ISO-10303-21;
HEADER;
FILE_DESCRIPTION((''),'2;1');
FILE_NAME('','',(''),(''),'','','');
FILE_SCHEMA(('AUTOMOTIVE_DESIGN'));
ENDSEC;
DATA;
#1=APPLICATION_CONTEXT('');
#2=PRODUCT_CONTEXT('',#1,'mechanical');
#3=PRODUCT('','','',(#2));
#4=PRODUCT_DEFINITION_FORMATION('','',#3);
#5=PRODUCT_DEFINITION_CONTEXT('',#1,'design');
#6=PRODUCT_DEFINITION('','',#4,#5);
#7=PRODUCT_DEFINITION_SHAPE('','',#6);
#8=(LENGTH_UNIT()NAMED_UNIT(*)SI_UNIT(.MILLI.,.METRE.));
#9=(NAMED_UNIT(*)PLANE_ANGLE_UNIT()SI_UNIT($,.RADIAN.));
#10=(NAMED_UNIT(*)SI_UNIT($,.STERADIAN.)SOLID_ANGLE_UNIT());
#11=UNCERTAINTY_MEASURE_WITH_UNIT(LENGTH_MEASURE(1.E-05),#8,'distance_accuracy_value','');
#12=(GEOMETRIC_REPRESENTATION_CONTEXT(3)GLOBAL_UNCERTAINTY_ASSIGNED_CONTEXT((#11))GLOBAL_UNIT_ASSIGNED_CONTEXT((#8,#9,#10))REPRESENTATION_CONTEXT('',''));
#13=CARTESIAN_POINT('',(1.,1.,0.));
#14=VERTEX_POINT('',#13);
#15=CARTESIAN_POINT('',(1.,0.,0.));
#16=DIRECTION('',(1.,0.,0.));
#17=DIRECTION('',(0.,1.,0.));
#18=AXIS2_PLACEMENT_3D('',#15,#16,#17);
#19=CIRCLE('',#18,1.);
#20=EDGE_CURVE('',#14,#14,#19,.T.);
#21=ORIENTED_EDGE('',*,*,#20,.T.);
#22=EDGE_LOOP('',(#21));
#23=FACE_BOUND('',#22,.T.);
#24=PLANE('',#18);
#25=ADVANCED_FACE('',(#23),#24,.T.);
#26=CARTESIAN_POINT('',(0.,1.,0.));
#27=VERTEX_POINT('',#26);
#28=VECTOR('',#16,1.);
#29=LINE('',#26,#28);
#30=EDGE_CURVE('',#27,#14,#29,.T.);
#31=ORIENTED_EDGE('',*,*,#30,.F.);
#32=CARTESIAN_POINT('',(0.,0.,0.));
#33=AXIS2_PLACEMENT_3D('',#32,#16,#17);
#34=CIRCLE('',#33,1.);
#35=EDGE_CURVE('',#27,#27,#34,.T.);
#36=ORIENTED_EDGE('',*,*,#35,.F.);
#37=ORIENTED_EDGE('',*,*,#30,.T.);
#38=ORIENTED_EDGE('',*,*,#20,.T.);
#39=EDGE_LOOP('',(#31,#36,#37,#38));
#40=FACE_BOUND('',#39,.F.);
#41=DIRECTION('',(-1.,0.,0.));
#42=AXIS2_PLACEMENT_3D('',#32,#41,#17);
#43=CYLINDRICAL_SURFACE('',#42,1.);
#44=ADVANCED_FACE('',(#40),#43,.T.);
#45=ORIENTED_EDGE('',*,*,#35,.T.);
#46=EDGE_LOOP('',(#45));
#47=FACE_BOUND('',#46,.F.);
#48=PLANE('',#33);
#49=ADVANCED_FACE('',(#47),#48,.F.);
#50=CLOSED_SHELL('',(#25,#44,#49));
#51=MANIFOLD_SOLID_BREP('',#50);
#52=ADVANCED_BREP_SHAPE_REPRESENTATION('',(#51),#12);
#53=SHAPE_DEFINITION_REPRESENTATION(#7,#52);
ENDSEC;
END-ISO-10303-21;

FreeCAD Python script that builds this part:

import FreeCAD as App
import Part
import Sketcher

V = App.Vector
Q = App.Units.Quantity

doc = App.newDocument("Part")
body = doc.addObject("PartDesign::Body", "Body")

# Sketch on YZ plane
sketch1 = body.newObject("Sketcher::SketchObject", "Sketch")
sketch1.AttachmentSupport = (doc.getObject("YZ_Plane"), [""])
sketch1.MapMode = "FlatFace"
sketch1.addGeometry(Part.Circle(V(0, 0, 0), V(0, 0, 1), 1), False)
sketch1.addConstraint([
    Sketcher.Constraint("Coincident", 0, 3, -1, 1),
    Sketcher.Constraint("Diameter", 0, Q("2 mm")),
])
pad1 = body.newObject("PartDesign::Pad", "Pad")
pad1.Profile = sketch1
pad1.Length = 1

doc.recompute()
